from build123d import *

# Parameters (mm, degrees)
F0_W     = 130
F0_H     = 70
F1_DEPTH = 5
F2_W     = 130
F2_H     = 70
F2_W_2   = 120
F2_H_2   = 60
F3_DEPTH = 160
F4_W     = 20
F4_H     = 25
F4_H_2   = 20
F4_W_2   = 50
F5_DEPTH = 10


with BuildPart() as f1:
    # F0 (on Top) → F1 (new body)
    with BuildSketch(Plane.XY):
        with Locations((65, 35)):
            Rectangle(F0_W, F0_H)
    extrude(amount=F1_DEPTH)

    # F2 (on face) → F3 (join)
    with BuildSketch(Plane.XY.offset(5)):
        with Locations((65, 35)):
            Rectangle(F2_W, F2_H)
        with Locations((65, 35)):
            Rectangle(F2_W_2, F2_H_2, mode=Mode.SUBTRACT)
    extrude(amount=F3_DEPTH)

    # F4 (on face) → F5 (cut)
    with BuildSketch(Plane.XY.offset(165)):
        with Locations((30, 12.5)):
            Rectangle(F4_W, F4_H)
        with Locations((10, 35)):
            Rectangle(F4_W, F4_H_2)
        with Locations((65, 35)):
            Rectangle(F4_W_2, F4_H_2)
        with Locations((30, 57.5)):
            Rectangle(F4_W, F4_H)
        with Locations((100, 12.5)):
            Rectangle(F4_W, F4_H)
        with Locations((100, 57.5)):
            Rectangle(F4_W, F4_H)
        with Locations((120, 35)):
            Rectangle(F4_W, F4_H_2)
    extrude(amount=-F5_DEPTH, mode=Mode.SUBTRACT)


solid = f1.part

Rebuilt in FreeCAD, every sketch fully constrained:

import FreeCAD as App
import Part
import Sketcher


def add_polygon(sketch, points):
    """Adds a closed chain of lines whose ends are joined by coincident constraints."""
    first, n = sketch.GeometryCount, len(points)
    for a, b in zip(points, points[1:] + points[:1]):
        sketch.addGeometry(Part.LineSegment(App.Vector(*a, 0), App.Vector(*b, 0)), False)
    for i in range(n):
        sketch.addConstraint(Sketcher.Constraint("Coincident", first + i, 2, first + (i + 1) % n, 1))

doc = App.newDocument("Part")
body = doc.addObject("PartDesign::Body", "Body")

# Sketch on XY plane
sketch1 = body.newObject("Sketcher::SketchObject", "Sketch")
sketch1.AttachmentSupport = (doc.getObject("XY_Plane"), [""])
sketch1.MapMode = "FlatFace"
add_polygon(sketch1, [(0, 70), (0, 0), (130, 0), (130, 70)])  # lines 0-3
sketch1.addConstraint([
    Sketcher.Constraint("Vertical", 0),
    Sketcher.Constraint("Horizontal", 1),
    Sketcher.Constraint("Vertical", 2),
    Sketcher.Constraint("Horizontal", 3),
    Sketcher.Constraint("Coincident", 0, 2, -1, 1),
    Sketcher.Constraint("DistanceX", 1, 1, 1, 2, 130.0),
    Sketcher.Constraint("DistanceY", 0, 2, 0, 1, 70.0),
])
pad1 = body.newObject("PartDesign::Pad", "Pad")
pad1.Profile = sketch1
pad1.Length = 5

# Sketch on XY plane
sketch2 = body.newObject("Sketcher::SketchObject", "Sketch001")
sketch2.AttachmentSupport = (doc.getObject("XY_Plane"), [""])
sketch2.MapMode = "FlatFace"
sketch2.AttachmentOffset = App.Placement(App.Vector(0, 0, 5), App.Rotation())
add_polygon(sketch2, [(0, 70), (0, 0), (130, 0), (130, 70)])  # lines 0-3
add_polygon(sketch2, [(125, 5), (5, 5), (5, 65), (125, 65)])  # lines 4-7
sketch2.addConstraint([
    Sketcher.Constraint("Vertical", 0),
    Sketcher.Constraint("Horizontal", 1),
    Sketcher.Constraint("Vertical", 2),
    Sketcher.Constraint("Horizontal", 3),
    Sketcher.Constraint("Horizontal", 4),
    Sketcher.Constraint("Vertical", 5),
    Sketcher.Constraint("Horizontal", 6),
    Sketcher.Constraint("Vertical", 7),
    Sketcher.Constraint("Coincident", 0, 2, -1, 1),
    Sketcher.Constraint("DistanceX", 1, 1, 1, 2, 130.0),
    Sketcher.Constraint("DistanceX", 4, 2, 4, 1, 120.0),
    Sketcher.Constraint("DistanceY", 0, 2, 0, 1, 70.0),
    Sketcher.Constraint("DistanceY", 5, 1, 5, 2, 60.0),
    Sketcher.Constraint("DistanceX", -1, 1, 4, 2, 5.0),
    Sketcher.Constraint("DistanceY", -1, 1, 4, 2, 5.0),
])
pad2 = body.newObject("PartDesign::Pad", "Pad001")
pad2.Profile = sketch2
pad2.Length = 160

# Sketch on XY plane
sketch3 = body.newObject("Sketcher::SketchObject", "Sketch002")
sketch3.AttachmentSupport = (doc.getObject("XY_Plane"), [""])
sketch3.MapMode = "FlatFace"
sketch3.AttachmentOffset = App.Placement(App.Vector(0, 0, 165), App.Rotation())
add_polygon(sketch3, [(20, 25), (20, 0), (40, 0), (40, 25)])  # lines 0-3
add_polygon(sketch3, [(0, 45), (0, 25), (20, 25), (20, 45)])  # lines 4-7
add_polygon(sketch3, [(40, 45), (40, 25), (90, 25), (90, 45)])  # lines 8-11
add_polygon(sketch3, [(20, 70), (20, 45), (40, 45), (40, 70)])  # lines 12-15
add_polygon(sketch3, [(90, 25), (90, 0), (110, 0), (110, 25)])  # lines 16-19
add_polygon(sketch3, [(90, 70), (90, 45), (110, 45), (110, 70)])  # lines 20-23
add_polygon(sketch3, [(110, 45), (110, 25), (130, 25), (130, 45)])  # lines 24-27
sketch3.addConstraint([
    Sketcher.Constraint("Vertical", 0),
    Sketcher.Constraint("Horizontal", 1),
    Sketcher.Constraint("Vertical", 2),
    Sketcher.Constraint("Horizontal", 3),
    Sketcher.Constraint("Vertical", 4),
    Sketcher.Constraint("Horizontal", 5),
    Sketcher.Constraint("Vertical", 6),
    Sketcher.Constraint("Horizontal", 7),
    Sketcher.Constraint("Vertical", 8),
    Sketcher.Constraint("Horizontal", 9),
    Sketcher.Constraint("Vertical", 10),
    Sketcher.Constraint("Horizontal", 11),
    Sketcher.Constraint("Vertical", 12),
    Sketcher.Constraint("Horizontal", 13),
    Sketcher.Constraint("Vertical", 14),
    Sketcher.Constraint("Horizontal", 15),
    Sketcher.Constraint("Vertical", 16),
    Sketcher.Constraint("Horizontal", 17),
    Sketcher.Constraint("Vertical", 18),
    Sketcher.Constraint("Horizontal", 19),
    Sketcher.Constraint("Vertical", 20),
    Sketcher.Constraint("Horizontal", 21),
    Sketcher.Constraint("Vertical", 22),
    Sketcher.Constraint("Horizontal", 23),
    Sketcher.Constraint("Vertical", 24),
    Sketcher.Constraint("Horizontal", 25),
    Sketcher.Constraint("Vertical", 26),
    Sketcher.Constraint("Horizontal", 27),
    Sketcher.Constraint("Coincident", 5, 2, 3, 2),
    Sketcher.Constraint("Coincident", 8, 2, 2, 2),
    Sketcher.Constraint("Coincident", 12, 2, 6, 2),
    Sketcher.Constraint("Coincident", 13, 2, 11, 2),
    Sketcher.Constraint("Coincident", 19, 2, 9, 2),
    Sketcher.Constraint("Coincident", 20, 2, 10, 2),
    Sketcher.Constraint("Coincident", 24, 2, 18, 2),
    Sketcher.Constraint("Coincident", 27, 2, 21, 2),
    Sketcher.Constraint("PointOnObject", 0, 2, -1),
    Sketcher.Constraint("PointOnObject", 4, 2, -2),
    Sketcher.Constraint("PointOnObject", 16, 2, -1),
    Sketcher.Constraint("Horizontal", 15, 2, 22, 2),
    Sketcher.Constraint("Equal", 3, 5),
    Sketcher.Constraint("Equal", 15, 17),
    Sketcher.Constraint("Equal", 23, 25),
    Sketcher.Constraint("Equal", 27, 4),
    Sketcher.Constraint("Equal", 2, 12),
    Sketcher.Constraint("DistanceX", 1, 1, 1, 2, 20.0),
    Sketcher.Constraint("DistanceX", 9, 1, 9, 2, 50.0),
    Sketcher.Constraint("DistanceY", 0, 2, 0, 1, 25.0),
])
pocket1 = body.newObject("PartDesign::Pocket", "Pocket")
pocket1.Profile = sketch3
pocket1.Length = 10

doc.recompute()
